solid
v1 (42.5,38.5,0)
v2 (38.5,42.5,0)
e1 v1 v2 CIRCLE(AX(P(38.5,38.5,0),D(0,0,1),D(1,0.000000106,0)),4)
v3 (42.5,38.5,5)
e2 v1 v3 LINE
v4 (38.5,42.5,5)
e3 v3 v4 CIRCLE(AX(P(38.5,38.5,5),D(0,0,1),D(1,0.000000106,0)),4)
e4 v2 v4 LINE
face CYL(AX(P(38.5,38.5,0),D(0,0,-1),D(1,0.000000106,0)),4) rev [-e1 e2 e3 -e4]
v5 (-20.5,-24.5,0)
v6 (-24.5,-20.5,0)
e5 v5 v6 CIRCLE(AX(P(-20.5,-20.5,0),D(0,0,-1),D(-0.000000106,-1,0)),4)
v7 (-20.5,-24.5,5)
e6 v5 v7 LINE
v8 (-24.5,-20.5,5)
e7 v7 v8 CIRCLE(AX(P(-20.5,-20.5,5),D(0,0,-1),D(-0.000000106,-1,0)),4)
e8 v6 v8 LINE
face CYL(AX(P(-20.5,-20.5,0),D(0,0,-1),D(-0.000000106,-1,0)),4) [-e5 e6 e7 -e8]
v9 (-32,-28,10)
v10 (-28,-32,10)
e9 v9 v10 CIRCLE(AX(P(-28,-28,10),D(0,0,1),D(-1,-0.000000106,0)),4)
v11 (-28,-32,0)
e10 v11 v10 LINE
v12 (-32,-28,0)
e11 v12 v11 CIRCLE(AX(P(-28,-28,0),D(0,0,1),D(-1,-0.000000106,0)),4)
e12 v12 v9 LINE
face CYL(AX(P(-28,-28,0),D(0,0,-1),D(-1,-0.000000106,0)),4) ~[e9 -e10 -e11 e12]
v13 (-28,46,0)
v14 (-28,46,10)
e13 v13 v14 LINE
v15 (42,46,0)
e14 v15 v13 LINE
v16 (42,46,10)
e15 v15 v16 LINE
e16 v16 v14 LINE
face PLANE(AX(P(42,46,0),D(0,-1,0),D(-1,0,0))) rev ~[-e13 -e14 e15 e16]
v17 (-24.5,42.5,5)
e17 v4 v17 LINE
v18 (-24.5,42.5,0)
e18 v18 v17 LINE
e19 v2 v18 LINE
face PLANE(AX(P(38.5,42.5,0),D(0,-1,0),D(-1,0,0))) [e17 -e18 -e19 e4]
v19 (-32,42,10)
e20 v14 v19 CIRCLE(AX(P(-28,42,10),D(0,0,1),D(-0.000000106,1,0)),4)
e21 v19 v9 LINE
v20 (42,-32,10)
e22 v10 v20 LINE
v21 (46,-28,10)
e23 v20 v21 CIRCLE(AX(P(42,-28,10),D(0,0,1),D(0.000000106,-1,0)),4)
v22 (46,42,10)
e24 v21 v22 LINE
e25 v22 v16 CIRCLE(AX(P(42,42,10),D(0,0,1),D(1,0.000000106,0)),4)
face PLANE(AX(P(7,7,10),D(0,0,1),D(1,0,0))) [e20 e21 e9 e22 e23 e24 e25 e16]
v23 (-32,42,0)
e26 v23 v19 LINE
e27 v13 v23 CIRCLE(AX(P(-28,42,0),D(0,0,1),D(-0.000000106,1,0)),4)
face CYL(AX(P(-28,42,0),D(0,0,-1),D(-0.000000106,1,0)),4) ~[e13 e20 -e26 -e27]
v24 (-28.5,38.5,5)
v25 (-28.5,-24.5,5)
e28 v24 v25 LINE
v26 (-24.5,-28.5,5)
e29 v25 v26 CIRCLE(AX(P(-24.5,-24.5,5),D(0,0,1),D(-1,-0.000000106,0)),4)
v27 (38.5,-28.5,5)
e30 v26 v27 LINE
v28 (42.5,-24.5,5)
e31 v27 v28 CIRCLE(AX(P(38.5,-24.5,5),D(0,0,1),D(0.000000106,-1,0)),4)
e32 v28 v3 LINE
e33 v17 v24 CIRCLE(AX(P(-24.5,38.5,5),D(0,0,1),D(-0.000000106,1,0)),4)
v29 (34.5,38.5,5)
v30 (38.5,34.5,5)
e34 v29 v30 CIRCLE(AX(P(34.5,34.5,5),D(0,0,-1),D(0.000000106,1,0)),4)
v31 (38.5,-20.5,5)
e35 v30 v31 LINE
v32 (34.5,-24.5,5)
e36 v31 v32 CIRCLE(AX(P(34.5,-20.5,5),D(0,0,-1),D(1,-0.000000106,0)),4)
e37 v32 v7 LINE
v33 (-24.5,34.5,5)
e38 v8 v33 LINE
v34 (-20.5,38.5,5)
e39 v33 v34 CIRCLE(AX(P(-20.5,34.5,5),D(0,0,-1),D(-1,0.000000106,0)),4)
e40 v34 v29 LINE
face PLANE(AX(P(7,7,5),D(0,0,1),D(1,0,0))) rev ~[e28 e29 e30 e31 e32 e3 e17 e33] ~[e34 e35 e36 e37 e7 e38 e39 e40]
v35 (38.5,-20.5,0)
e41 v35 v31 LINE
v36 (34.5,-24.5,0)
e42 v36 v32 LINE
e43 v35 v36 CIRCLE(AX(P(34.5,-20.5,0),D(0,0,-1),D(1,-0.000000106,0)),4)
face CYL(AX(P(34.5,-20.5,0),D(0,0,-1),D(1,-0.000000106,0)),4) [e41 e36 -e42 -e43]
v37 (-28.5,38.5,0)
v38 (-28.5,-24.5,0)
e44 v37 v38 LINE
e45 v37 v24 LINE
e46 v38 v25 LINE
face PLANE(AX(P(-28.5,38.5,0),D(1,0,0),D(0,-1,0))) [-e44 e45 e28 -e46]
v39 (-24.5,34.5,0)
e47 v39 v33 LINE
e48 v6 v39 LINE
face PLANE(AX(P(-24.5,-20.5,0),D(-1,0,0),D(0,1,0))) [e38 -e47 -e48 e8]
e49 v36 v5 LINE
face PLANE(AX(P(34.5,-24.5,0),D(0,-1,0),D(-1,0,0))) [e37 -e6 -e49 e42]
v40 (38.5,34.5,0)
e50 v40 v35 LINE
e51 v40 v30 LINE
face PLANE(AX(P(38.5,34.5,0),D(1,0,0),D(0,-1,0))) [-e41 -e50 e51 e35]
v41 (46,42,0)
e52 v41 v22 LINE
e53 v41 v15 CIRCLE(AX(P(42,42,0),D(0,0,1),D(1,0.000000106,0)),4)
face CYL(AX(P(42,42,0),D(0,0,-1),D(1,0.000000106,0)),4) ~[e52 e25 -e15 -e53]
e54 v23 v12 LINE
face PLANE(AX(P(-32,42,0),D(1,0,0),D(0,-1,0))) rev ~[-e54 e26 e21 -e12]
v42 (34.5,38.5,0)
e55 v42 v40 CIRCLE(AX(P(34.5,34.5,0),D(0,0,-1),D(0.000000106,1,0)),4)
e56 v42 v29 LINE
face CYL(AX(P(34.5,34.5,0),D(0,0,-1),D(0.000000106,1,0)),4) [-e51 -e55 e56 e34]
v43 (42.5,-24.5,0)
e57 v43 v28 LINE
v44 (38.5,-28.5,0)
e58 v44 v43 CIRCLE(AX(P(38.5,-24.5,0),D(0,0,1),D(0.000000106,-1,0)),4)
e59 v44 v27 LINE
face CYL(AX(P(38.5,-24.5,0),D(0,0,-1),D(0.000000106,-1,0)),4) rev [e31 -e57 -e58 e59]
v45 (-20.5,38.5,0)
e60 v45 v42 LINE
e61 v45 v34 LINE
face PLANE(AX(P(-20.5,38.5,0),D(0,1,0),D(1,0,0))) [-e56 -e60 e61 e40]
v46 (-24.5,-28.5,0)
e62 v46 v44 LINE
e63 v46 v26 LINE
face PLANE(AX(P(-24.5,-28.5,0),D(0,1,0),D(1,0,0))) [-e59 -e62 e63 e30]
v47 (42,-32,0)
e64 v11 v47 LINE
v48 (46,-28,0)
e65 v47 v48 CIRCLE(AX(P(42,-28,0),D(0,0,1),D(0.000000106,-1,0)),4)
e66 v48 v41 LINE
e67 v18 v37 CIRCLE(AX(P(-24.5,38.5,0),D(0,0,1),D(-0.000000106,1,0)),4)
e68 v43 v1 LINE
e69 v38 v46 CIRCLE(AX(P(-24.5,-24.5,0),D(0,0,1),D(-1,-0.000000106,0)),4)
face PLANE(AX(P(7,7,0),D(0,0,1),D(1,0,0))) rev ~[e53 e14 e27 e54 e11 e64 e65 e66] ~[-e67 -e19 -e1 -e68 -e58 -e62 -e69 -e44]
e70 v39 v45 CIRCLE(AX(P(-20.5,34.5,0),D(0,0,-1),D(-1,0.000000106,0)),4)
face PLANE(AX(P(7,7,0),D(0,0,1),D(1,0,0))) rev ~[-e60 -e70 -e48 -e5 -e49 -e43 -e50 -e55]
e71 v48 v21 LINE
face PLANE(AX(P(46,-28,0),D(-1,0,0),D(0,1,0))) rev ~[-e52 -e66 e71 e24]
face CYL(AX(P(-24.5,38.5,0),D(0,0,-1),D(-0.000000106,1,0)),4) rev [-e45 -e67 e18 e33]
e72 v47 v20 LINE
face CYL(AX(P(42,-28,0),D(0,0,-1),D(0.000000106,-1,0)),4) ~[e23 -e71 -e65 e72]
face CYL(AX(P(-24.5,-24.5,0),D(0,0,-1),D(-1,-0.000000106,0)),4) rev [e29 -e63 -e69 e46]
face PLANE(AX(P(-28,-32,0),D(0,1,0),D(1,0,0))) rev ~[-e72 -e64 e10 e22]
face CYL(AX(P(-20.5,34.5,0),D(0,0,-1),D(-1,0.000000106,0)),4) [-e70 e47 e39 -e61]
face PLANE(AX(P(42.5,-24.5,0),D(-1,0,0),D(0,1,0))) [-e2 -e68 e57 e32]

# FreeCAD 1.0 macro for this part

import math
import FreeCAD as App
import Part
import Sketcher
from FreeCAD import Vector
Q = App.Units.Quantity

doc = App.newDocument("Part")
params = doc.addObject("Spreadsheet::Sheet", "Params")
for row, (alias, value) in enumerate([
    ("sketch1_radius", "4 mm"),
    ("sketch1_width", "70 mm"),
    ("pad1_length", "10 mm"),
    ("sketch2_radius", "4 mm"),
    ("sketch2_width", "63 mm"),
    ("pocket1_length", "5 mm"),
], start=1):
    params.set(f"A{row}", alias)
    params.set(f"B{row}", "=" + value)
    params.setAlias(f"B{row}", alias)

body = doc.addObject("PartDesign::Body", "Body")

# Sketch on XY plane
sketch1 = body.newObject("Sketcher::SketchObject", "Sketch")
sketch1.AttachmentSupport = (doc.getObject("XY_Plane"), [""])
sketch1.MapMode = "FlatFace"
sketch1.addGeometry([
    Part.LineSegment(Vector(42, 46, 0), Vector(-28, 46, 0)),  # 0
    Part.ArcOfCircle(Part.Circle(Vector(-28, 42, 0), Vector(0, 0, 1), 4), math.radians(90), math.radians(180)),  # 1
    Part.LineSegment(Vector(-32, 42, 0), Vector(-32, -28, 0)),  # 2
    Part.ArcOfCircle(Part.Circle(Vector(-28, -28, 0), Vector(0, 0, 1), 4), math.radians(-180), math.radians(-90)),  # 3
    Part.LineSegment(Vector(-28, -32, 0), Vector(42, -32, 0)),  # 4
    Part.ArcOfCircle(Part.Circle(Vector(42, -28, 0), Vector(0, 0, 1), 4), math.radians(-90), math.radians(0)),  # 5
    Part.LineSegment(Vector(46, -28, 0), Vector(46, 42, 0)),  # 6
    Part.ArcOfCircle(Part.Circle(Vector(42, 42, 0), Vector(0, 0, 1), 4), math.radians(0), math.radians(90)),  # 7
], False)
sketch1.addConstraint([
    Sketcher.Constraint("Tangent", 0, 2, 1, 1),
    Sketcher.Constraint("Tangent", 1, 2, 2, 1),
    Sketcher.Constraint("Tangent", 2, 2, 3, 1),
    Sketcher.Constraint("Tangent", 3, 2, 4, 1),
    Sketcher.Constraint("Tangent", 4, 2, 5, 1),
    Sketcher.Constraint("Tangent", 5, 2, 6, 1),
    Sketcher.Constraint("Tangent", 6, 2, 7, 1),
    Sketcher.Constraint("Tangent", 7, 2, 0, 1),
    Sketcher.Constraint("Horizontal", 0),
    Sketcher.Constraint("Vertical", 2),
    Sketcher.Constraint("Horizontal", 4),
    Sketcher.Constraint("Vertical", 6),
    Sketcher.Constraint("Equal", 1, 3),
    Sketcher.Constraint("Equal", 3, 5),
    Sketcher.Constraint("Equal", 5, 7),
    Sketcher.Constraint("Equal", 4, 2),
    Sketcher.Constraint("Radius", 1, Q("4 mm")),
    Sketcher.Constraint("DistanceX", 0, 2, 0, 1, Q("70 mm")),
    Sketcher.Constraint("DistanceX", 1, 3, -1, 1, Q("28 mm")),
    Sketcher.Constraint("DistanceY", -1, 1, 1, 3, Q("42 mm")),
])
sketch1.setExpression("Constraints[16]", "Params.sketch1_radius")
sketch1.setExpression("Constraints[17]", "Params.sketch1_width")
pad1 = body.newObject("PartDesign::Pad", "Pad")
pad1.Profile = sketch1
pad1.setExpression("Length", "Params.pad1_length")

# Sketch on XY plane
sketch2 = body.newObject("Sketcher::SketchObject", "Sketch001")
sketch2.AttachmentSupport = (doc.getObject("XY_Plane"), [""])
sketch2.MapMode = "FlatFace"
sketch2.addGeometry([
    Part.LineSegment(Vector(38.5, 42.5, 0), Vector(-24.5, 42.5, 0)),  # 0
    Part.ArcOfCircle(Part.Circle(Vector(-24.5, 38.5, 0), Vector(0, 0, 1), 4), math.radians(90), math.radians(180)),  # 1
    Part.LineSegment(Vector(-28.5, 38.5, 0), Vector(-28.5, -24.5, 0)),  # 2
    Part.ArcOfCircle(Part.Circle(Vector(-24.5, -24.5, 0), Vector(0, 0, 1), 4), math.radians(-180), math.radians(-90)),  # 3
    Part.LineSegment(Vector(-24.5, -28.5, 0), Vector(38.5, -28.5, 0)),  # 4
    Part.ArcOfCircle(Part.Circle(Vector(38.5, -24.5, 0), Vector(0, 0, 1), 4), math.radians(-90), math.radians(0)),  # 5
    Part.LineSegment(Vector(42.5, -24.5, 0), Vector(42.5, 38.5, 0)),  # 6
    Part.ArcOfCircle(Part.Circle(Vector(38.5, 38.5, 0), Vector(0, 0, 1), 4), math.radians(0), math.radians(90)),  # 7
    Part.LineSegment(Vector(-24.5, -20.5, 0), Vector(-24.5, 34.5, 0)),  # 8
    Part.ArcOfCircle(Part.Circle(Vector(-20.5, 34.5, 0), Vector(0, 0, 1), 4), math.radians(90), math.radians(180)),  # 9
    Part.LineSegment(Vector(-20.5, 38.5, 0), Vector(34.5, 38.5, 0)),  # 10
    Part.ArcOfCircle(Part.Circle(Vector(34.5, 34.5, 0), Vector(0, 0, 1), 4), math.radians(0), math.radians(90)),  # 11
    Part.LineSegment(Vector(38.5, 34.5, 0), Vector(38.5, -20.5, 0)),  # 12
    Part.ArcOfCircle(Part.Circle(Vector(34.5, -20.5, 0), Vector(0, 0, 1), 4), math.radians(-90), math.radians(0)),  # 13
    Part.LineSegment(Vector(34.5, -24.5, 0), Vector(-20.5, -24.5, 0)),  # 14
    Part.ArcOfCircle(Part.Circle(Vector(-20.5, -20.5, 0), Vector(0, 0, 1), 4), math.radians(-180), math.radians(-90)),  # 15
], False)
sketch2.addConstraint([
    Sketcher.Constraint("Tangent", 0, 2, 1, 1),
    Sketcher.Constraint("Tangent", 1, 2, 2, 1),
    Sketcher.Constraint("Tangent", 2, 2, 3, 1),
    Sketcher.Constraint("Tangent", 3, 2, 4, 1),
    Sketcher.Constraint("Tangent", 4, 2, 5, 1),
    Sketcher.Constraint("Tangent", 5, 2, 6, 1),
    Sketcher.Constraint("Tangent", 6, 2, 7, 1),
    Sketcher.Constraint("Tangent", 7, 2, 0, 1),
    Sketcher.Constraint("Tangent", 8, 2, 9, 2),
    Sketcher.Constraint("Tangent", 9, 1, 10, 1),
    Sketcher.Constraint("Tangent", 10, 2, 11, 2),
    Sketcher.Constraint("Tangent", 11, 1, 12, 1),
    Sketcher.Constraint("Tangent", 12, 2, 13, 2),
    Sketcher.Constraint("Tangent", 13, 1, 14, 1),
    Sketcher.Constraint("Tangent", 14, 2, 15, 2),
    Sketcher.Constraint("Tangent", 15, 1, 8, 1),
    Sketcher.Constraint("Horizontal", 0),
    Sketcher.Constraint("Vertical", 2),
    Sketcher.Constraint("Horizontal", 4),
    Sketcher.Constraint("Vertical", 6),
    Sketcher.Constraint("Vertical", 8),
    Sketcher.Constraint("Horizontal", 10),
    Sketcher.Constraint("Vertical", 12),
    Sketcher.Constraint("Horizontal", 14),
    Sketcher.Constraint("Equal", 1, 3),
    Sketcher.Constraint("Equal", 3, 5),
    Sketcher.Constraint("Equal", 5, 7),
    Sketcher.Constraint("Equal", 7, 9),
    Sketcher.Constraint("Equal", 9, 11),
    Sketcher.Constraint("Equal", 11, 13),
    Sketcher.Constraint("Equal", 13, 15),
    Sketcher.Constraint("Horizontal", 6, 2, 9, 1),
    Sketcher.Constraint("Horizontal", 5, 2, 13, 1),
    Sketcher.Constraint("Vertical", 3, 2, 8, 2),
    Sketcher.Constraint("Vertical", 7, 2, 11, 1),
    Sketcher.Constraint("Equal", 4, 2),
    Sketcher.Constraint("Radius", 1, Q("4 mm")),
    Sketcher.Constraint("DistanceX", 0, 2, 0, 1, Q("63 mm")),
    Sketcher.Constraint("DistanceX", 1, 3, -1, 1, Q("24.5 mm")),
    Sketcher.Constraint("DistanceY", -1, 1, 1, 3, Q("38.5 mm")),
])
sketch2.setExpression("Constraints[36]", "Params.sketch2_radius")
sketch2.setExpression("Constraints[37]", "Params.sketch2_width")
pocket1 = body.newObject("PartDesign::Pocket", "Pocket")
pocket1.Profile = sketch2
pocket1.setExpression("Length", "Params.pocket1_length")
pocket1.Reversed = True

doc.recompute()
